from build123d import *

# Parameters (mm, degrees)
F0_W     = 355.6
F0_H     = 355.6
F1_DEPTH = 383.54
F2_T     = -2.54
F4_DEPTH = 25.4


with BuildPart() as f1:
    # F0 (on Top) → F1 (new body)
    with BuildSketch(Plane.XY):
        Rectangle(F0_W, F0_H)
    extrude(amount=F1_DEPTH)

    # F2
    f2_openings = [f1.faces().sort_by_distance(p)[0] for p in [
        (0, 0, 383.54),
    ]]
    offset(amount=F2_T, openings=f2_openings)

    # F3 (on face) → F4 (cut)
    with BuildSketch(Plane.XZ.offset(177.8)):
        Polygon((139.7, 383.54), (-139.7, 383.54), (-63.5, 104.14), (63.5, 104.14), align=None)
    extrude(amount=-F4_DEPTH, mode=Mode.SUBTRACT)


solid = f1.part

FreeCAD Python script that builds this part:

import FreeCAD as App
import Part
import Sketcher

V = App.Vector
Q = App.Units.Quantity


def faces_at(feature, points):
    """Names of the faces that lie closest to the given points."""
    faces = feature.Shape.Faces
    near = lambda p: min(range(len(faces)), key=lambda i: faces[i].distToShape(Part.Vertex(*p))[0])
    return sorted({f"Face{near(p) + 1}" for p in points})

doc = App.newDocument("Part")
body = doc.addObject("PartDesign::Body", "Body")

sketch1 = body.newObject("Sketcher::SketchObject", "Sketch")
sketch1.AttachmentSupport = (doc.getObject("XY_Plane"), [""])
sketch1.MapMode = "FlatFace"
sketch1.addGeometry(Part.LineSegment(V(-178, 178, 0), V(-178, -178, 0)), False)
sketch1.addGeometry(Part.LineSegment(V(-178, -178, 0), V(178, -178, 0)), False)
sketch1.addGeometry(Part.LineSegment(V(178, -178, 0), V(178, 178, 0)), False)
sketch1.addGeometry(Part.LineSegment(V(178, 178, 0), V(-178, 178, 0)), False)
sketch1.addConstraint(Sketcher.Constraint("Coincident", 0, 2, 1, 1))
sketch1.addConstraint(Sketcher.Constraint("Coincident", 1, 2, 2, 1))
sketch1.addConstraint(Sketcher.Constraint("Coincident", 2, 2, 3, 1))
sketch1.addConstraint(Sketcher.Constraint("Coincident", 3, 2, 0, 1))
sketch1.addConstraint(Sketcher.Constraint("Vertical", 0))
sketch1.addConstraint(Sketcher.Constraint("Horizontal", 1))
sketch1.addConstraint(Sketcher.Constraint("Vertical", 2))
sketch1.addConstraint(Sketcher.Constraint("Horizontal", 3))
sketch1.addConstraint(Sketcher.Constraint("Symmetric", 0, 2, 2, 2, -1, 1))
sketch1.addConstraint(Sketcher.Constraint("Equal", 3, 0))
sketch1.addConstraint(Sketcher.Constraint("DistanceX", 1, 1, 1, 2, Q("14 in")))
pad1 = body.newObject("PartDesign::Pad", "Pad")
pad1.Profile = sketch1
pad1.Length = Q("15.1 in")
doc.recompute()

thickness = body.newObject("PartDesign::Thickness", "Thickness")
thickness.Base = (pad1, faces_at(pad1, [(0, 0, 383.54)]))
thickness.Value = Q("0.1 in")
thickness.Reversed = True
thickness.Join = "Arc"

sketch2 = body.newObject("Sketcher::SketchObject", "Sketch001")
sketch2.AttachmentSupport = (doc.getObject("XZ_Plane"), [""])
sketch2.MapMode = "FlatFace"
sketch2.AttachmentOffset = App.Placement(V(0, 0, 7 * 25.4), App.Rotation())
sketch2.addGeometry(Part.LineSegment(V(140, 384, 0), V(-140, 384, 0)), False)
sketch2.addGeometry(Part.LineSegment(V(-140, 384, 0), V(-64, 104, 0)), False)
sketch2.addGeometry(Part.LineSegment(V(-64, 104, 0), V(64, 104, 0)), False)
sketch2.addGeometry(Part.LineSegment(V(64, 104, 0), V(140, 384, 0)), False)
sketch2.addConstraint(Sketcher.Constraint("Coincident", 0, 2, 1, 1))
sketch2.addConstraint(Sketcher.Constraint("Coincident", 1, 2, 2, 1))
sketch2.addConstraint(Sketcher.Constraint("Coincident", 2, 2, 3, 1))
sketch2.addConstraint(Sketcher.Constraint("Coincident", 3, 2, 0, 1))
sketch2.addConstraint(Sketcher.Constraint("Horizontal", 0))
sketch2.addConstraint(Sketcher.Constraint("Horizontal", 2))
sketch2.addConstraint(Sketcher.Constraint("Equal", 1, 3))
sketch2.addConstraint(Sketcher.Constraint("DistanceX", 0, 2, 0, 1, Q("11 in")))
sketch2.addConstraint(Sketcher.Constraint("DistanceX", 2, 1, 2, 2, Q("5 in")))
sketch2.addConstraint(Sketcher.Constraint("DistanceY", 1, 2, 0, 2, Q("11 in")))
sketch2.addConstraint(Sketcher.Constraint("DistanceX", 0, 2, -1, 1, Q("5.5 in")))
sketch2.addConstraint(Sketcher.Constraint("DistanceY", -1, 1, 0, 2, Q("15.1 in")))
pocket1 = body.newObject("PartDesign::Pocket", "Pocket")
pocket1.Profile = sketch2
pocket1.Length = Q("1 in")

doc.recompute()
